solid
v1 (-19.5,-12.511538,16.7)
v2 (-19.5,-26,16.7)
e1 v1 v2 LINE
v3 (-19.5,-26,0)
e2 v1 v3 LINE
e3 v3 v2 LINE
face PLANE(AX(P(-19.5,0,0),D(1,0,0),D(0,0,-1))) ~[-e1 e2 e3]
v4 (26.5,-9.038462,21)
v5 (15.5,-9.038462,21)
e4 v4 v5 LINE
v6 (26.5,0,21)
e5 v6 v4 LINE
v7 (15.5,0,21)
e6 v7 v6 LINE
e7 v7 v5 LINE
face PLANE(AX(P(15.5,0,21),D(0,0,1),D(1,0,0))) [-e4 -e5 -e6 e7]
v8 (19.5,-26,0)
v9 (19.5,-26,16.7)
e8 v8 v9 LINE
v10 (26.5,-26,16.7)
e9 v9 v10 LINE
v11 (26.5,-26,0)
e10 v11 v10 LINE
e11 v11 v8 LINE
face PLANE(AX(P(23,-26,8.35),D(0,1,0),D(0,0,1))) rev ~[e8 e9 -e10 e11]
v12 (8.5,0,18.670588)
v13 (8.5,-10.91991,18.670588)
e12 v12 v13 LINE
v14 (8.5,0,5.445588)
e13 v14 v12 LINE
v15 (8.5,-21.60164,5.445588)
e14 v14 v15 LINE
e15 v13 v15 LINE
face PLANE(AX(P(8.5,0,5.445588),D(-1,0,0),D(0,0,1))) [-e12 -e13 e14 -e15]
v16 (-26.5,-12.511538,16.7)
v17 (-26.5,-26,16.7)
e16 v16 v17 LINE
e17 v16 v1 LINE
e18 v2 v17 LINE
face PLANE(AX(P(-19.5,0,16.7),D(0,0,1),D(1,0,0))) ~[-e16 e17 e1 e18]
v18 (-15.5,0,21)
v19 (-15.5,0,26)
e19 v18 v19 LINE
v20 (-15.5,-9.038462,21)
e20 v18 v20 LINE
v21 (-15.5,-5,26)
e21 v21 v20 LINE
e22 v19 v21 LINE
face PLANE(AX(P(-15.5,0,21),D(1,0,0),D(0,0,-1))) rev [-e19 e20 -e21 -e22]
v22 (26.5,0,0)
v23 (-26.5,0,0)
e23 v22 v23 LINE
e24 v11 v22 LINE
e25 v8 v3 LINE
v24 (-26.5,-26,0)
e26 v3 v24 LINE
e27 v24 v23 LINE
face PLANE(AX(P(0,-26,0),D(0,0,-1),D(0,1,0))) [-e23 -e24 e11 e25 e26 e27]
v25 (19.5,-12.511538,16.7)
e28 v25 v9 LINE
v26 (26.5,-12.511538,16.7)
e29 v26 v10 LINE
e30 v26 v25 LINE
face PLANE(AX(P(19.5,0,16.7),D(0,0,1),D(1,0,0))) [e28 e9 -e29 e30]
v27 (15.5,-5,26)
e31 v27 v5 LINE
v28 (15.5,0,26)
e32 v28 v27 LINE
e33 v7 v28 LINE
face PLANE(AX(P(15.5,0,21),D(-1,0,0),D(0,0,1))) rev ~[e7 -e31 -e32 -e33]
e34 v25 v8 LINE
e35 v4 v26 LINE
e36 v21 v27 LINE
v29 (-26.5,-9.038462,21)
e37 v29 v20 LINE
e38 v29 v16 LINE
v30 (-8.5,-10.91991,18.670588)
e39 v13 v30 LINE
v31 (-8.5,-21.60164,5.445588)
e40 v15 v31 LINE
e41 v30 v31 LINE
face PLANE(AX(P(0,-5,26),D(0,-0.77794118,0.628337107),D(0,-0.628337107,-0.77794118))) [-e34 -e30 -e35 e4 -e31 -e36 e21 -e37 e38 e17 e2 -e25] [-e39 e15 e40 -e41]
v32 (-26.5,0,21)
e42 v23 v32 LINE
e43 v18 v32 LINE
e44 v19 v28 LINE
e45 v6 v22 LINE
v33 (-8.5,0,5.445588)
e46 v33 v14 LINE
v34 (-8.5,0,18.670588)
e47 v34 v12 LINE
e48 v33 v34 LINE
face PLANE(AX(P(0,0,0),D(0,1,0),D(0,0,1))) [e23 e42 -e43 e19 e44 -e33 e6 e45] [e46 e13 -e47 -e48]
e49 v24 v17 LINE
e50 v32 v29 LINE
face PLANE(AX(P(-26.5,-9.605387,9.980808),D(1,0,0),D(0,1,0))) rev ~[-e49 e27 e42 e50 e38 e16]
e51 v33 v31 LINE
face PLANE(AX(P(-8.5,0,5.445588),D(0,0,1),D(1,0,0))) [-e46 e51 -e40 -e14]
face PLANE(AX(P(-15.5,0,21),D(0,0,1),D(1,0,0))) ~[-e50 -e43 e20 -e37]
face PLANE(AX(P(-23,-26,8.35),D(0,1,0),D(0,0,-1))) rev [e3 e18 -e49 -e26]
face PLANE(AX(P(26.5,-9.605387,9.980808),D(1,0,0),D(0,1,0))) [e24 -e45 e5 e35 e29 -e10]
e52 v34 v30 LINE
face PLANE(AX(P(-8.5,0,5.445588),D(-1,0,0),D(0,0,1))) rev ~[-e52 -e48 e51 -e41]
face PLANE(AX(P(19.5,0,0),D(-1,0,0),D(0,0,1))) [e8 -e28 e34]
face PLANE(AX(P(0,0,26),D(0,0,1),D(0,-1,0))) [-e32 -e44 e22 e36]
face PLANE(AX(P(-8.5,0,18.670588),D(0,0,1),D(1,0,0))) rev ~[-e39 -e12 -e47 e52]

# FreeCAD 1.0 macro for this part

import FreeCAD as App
import Part
import Sketcher

V = App.Vector

doc = App.newDocument("Part")
body = doc.addObject("PartDesign::Body", "Body")

# Sketch on YZ plane
sketch1 = body.newObject("Sketcher::SketchObject", "Sketch")
sketch1.AttachmentSupport = (doc.getObject("YZ_Plane"), [""])
sketch1.MapMode = "FlatFace"
sketch1.addGeometry([
    Part.LineSegment(V(0, 0, 0), V(0, 26, 0)),
    Part.LineSegment(V(0, 26, 0), V(-5, 26, 0)),
    Part.LineSegment(V(-5, 26, 0), V(-26, 0, 0)),
    Part.LineSegment(V(-26, 0, 0), V(0, 0, 0)),
], False)
sketch1.addConstraint([
    Sketcher.Constraint("Coincident", 0, 2, 1, 1),
    Sketcher.Constraint("Coincident", 1, 2, 2, 1),
    Sketcher.Constraint("Coincident", 2, 2, 3, 1),
    Sketcher.Constraint("Coincident", 3, 2, 0, 1),
    Sketcher.Constraint("Vertical", 0),
    Sketcher.Constraint("Horizontal", 1),
    Sketcher.Constraint("Horizontal", 3),
    Sketcher.Constraint("Coincident", 3, 2, -1, 1),
    Sketcher.Constraint("Equal", 3, 0),
    Sketcher.Constraint("DistanceX", 1, 2, 1, 1, 5.0),
    Sketcher.Constraint("DistanceX", 3, 1, 3, 2, 26.0),
])
pad1 = body.newObject("PartDesign::Pad", "Pad")
pad1.Profile = sketch1
pad1.Type = "TwoLengths"
pad1.Length = 26.5
pad1.Length2 = 26.5

# Sketch on XZ plane
sketch2 = body.newObject("Sketcher::SketchObject", "Sketch001")
sketch2.AttachmentSupport = (doc.getObject("XZ_Plane"), [""])
sketch2.MapMode = "FlatFace"
sketch2.addGeometry([
    Part.LineSegment(V(26.5, 21, 0), V(15.5, 21, 0)),
    Part.LineSegment(V(15.5, 21, 0), V(15.5, 26, 0)),
    Part.LineSegment(V(15.5, 26, 0), V(26.5, 26, 0)),
    Part.LineSegment(V(26.5, 26, 0), V(26.5, 21, 0)),
], False)
sketch2.addConstraint([
    Sketcher.Constraint("Coincident", 0, 2, 1, 1),
    Sketcher.Constraint("Coincident", 1, 2, 2, 1),
    Sketcher.Constraint("Coincident", 2, 2, 3, 1),
    Sketcher.Constraint("Coincident", 3, 2, 0, 1),
    Sketcher.Constraint("Horizontal", 0),
    Sketcher.Constraint("Vertical", 1),
    Sketcher.Constraint("Horizontal", 2),
    Sketcher.Constraint("Vertical", 3),
    Sketcher.Constraint("DistanceX", 0, 2, 0, 1, 11.0),
    Sketcher.Constraint("DistanceY", 1, 1, 1, 2, 5.0),
    Sketcher.Constraint("DistanceY", -1, 1, 0, 2, 21.0),
    Sketcher.Constraint("DistanceX", -1, 1, 0, 2, 15.5),
])
pocket1 = body.newObject("PartDesign::Pocket", "Pocket")
pocket1.Profile = sketch2
pocket1.Type = "ThroughAll"
pocket1.Reversed = True
doc.recompute()

mirrored = body.newObject("PartDesign::Mirrored", "Mirrored")
mirrored.Originals = [pocket1]
mirrored.MirrorPlane = (doc.getObject("YZ_Plane"), [""])
body.Tip = mirrored

# Sketch on XZ plane
sketch3 = body.newObject("Sketcher::SketchObject", "Sketch002")
sketch3.AttachmentSupport = (doc.getObject("XZ_Plane"), [""])
sketch3.MapMode = "FlatFace"
sketch3.addGeometry([
    Part.LineSegment(V(26.5, 0, 0), V(19.5, 0, 0)),
    Part.LineSegment(V(19.5, 0, 0), V(19.5, 16.7, 0)),
    Part.LineSegment(V(19.5, 16.7, 0), V(26.5, 16.7, 0)),
    Part.LineSegment(V(26.5, 16.7, 0), V(26.5, 0, 0)),
], False)
sketch3.addConstraint([
    Sketcher.Constraint("Coincident", 0, 2, 1, 1),
    Sketcher.Constraint("Coincident", 1, 2, 2, 1),
    Sketcher.Constraint("Coincident", 2, 2, 3, 1),
    Sketcher.Constraint("Coincident", 3, 2, 0, 1),
    Sketcher.Constraint("Horizontal", 0),
    Sketcher.Constraint("Vertical", 1),
    Sketcher.Constraint("Horizontal", 2),
    Sketcher.Constraint("Vertical", 3),
    Sketcher.Constraint("PointOnObject", 0, 2, -1),
    Sketcher.Constraint("DistanceX", 0, 2, 0, 1, 7.0),
    Sketcher.Constraint("DistanceY", 1, 1, 1, 2, 16.7),
    Sketcher.Constraint("DistanceX", -1, 1, 0, 2, 19.5),
])
pad2 = body.newObject("PartDesign::Pad", "Pad001")
pad2.Profile = sketch3
pad2.Length = 26
doc.recompute()

mirrored2 = body.newObject("PartDesign::Mirrored", "Mirrored001")
mirrored2.Originals = [pad2]
mirrored2.MirrorPlane = (doc.getObject("YZ_Plane"), [""])
body.Tip = mirrored2

# Sketch on XZ plane
sketch4 = body.newObject("Sketcher::SketchObject", "Sketch003")
sketch4.AttachmentSupport = (doc.getObject("XZ_Plane"), [""])
sketch4.MapMode = "FlatFace"
sketch4.addGeometry([
    Part.LineSegment(V(8.5, 5.445588, 0), V(-8.5, 5.445588, 0)),
    Part.LineSegment(V(-8.5, 5.445588, 0), V(-8.5, 18.670588, 0)),
    Part.LineSegment(V(-8.5, 18.670588, 0), V(8.5, 18.670588, 0)),
    Part.LineSegment(V(8.5, 18.670588, 0), V(8.5, 5.445588, 0)),
], False)
sketch4.addConstraint([
    Sketcher.Constraint("Coincident", 0, 2, 1, 1),
    Sketcher.Constraint("Coincident", 1, 2, 2, 1),
    Sketcher.Constraint("Coincident", 2, 2, 3, 1),
    Sketcher.Constraint("Coincident", 3, 2, 0, 1),
    Sketcher.Constraint("Horizontal", 0),
    Sketcher.Constraint("Vertical", 1),
    Sketcher.Constraint("Horizontal", 2),
    Sketcher.Constraint("Vertical", 3),
    Sketcher.Constraint("DistanceX", 0, 2, 0, 1, 17.0),
    Sketcher.Constraint("DistanceX", 0, 2, -1, 1, 8.5),
    Sketcher.Constraint("DistanceY", 1, 1, 1, 2, 13.225),
    Sketcher.Constraint("DistanceY", -1, 1, 0, 2, 5.445588),
])
pocket2 = body.newObject("PartDesign::Pocket", "Pocket001")
pocket2.Profile = sketch4
pocket2.Type = "ThroughAll"
pocket2.Reversed = True

doc.recompute()
